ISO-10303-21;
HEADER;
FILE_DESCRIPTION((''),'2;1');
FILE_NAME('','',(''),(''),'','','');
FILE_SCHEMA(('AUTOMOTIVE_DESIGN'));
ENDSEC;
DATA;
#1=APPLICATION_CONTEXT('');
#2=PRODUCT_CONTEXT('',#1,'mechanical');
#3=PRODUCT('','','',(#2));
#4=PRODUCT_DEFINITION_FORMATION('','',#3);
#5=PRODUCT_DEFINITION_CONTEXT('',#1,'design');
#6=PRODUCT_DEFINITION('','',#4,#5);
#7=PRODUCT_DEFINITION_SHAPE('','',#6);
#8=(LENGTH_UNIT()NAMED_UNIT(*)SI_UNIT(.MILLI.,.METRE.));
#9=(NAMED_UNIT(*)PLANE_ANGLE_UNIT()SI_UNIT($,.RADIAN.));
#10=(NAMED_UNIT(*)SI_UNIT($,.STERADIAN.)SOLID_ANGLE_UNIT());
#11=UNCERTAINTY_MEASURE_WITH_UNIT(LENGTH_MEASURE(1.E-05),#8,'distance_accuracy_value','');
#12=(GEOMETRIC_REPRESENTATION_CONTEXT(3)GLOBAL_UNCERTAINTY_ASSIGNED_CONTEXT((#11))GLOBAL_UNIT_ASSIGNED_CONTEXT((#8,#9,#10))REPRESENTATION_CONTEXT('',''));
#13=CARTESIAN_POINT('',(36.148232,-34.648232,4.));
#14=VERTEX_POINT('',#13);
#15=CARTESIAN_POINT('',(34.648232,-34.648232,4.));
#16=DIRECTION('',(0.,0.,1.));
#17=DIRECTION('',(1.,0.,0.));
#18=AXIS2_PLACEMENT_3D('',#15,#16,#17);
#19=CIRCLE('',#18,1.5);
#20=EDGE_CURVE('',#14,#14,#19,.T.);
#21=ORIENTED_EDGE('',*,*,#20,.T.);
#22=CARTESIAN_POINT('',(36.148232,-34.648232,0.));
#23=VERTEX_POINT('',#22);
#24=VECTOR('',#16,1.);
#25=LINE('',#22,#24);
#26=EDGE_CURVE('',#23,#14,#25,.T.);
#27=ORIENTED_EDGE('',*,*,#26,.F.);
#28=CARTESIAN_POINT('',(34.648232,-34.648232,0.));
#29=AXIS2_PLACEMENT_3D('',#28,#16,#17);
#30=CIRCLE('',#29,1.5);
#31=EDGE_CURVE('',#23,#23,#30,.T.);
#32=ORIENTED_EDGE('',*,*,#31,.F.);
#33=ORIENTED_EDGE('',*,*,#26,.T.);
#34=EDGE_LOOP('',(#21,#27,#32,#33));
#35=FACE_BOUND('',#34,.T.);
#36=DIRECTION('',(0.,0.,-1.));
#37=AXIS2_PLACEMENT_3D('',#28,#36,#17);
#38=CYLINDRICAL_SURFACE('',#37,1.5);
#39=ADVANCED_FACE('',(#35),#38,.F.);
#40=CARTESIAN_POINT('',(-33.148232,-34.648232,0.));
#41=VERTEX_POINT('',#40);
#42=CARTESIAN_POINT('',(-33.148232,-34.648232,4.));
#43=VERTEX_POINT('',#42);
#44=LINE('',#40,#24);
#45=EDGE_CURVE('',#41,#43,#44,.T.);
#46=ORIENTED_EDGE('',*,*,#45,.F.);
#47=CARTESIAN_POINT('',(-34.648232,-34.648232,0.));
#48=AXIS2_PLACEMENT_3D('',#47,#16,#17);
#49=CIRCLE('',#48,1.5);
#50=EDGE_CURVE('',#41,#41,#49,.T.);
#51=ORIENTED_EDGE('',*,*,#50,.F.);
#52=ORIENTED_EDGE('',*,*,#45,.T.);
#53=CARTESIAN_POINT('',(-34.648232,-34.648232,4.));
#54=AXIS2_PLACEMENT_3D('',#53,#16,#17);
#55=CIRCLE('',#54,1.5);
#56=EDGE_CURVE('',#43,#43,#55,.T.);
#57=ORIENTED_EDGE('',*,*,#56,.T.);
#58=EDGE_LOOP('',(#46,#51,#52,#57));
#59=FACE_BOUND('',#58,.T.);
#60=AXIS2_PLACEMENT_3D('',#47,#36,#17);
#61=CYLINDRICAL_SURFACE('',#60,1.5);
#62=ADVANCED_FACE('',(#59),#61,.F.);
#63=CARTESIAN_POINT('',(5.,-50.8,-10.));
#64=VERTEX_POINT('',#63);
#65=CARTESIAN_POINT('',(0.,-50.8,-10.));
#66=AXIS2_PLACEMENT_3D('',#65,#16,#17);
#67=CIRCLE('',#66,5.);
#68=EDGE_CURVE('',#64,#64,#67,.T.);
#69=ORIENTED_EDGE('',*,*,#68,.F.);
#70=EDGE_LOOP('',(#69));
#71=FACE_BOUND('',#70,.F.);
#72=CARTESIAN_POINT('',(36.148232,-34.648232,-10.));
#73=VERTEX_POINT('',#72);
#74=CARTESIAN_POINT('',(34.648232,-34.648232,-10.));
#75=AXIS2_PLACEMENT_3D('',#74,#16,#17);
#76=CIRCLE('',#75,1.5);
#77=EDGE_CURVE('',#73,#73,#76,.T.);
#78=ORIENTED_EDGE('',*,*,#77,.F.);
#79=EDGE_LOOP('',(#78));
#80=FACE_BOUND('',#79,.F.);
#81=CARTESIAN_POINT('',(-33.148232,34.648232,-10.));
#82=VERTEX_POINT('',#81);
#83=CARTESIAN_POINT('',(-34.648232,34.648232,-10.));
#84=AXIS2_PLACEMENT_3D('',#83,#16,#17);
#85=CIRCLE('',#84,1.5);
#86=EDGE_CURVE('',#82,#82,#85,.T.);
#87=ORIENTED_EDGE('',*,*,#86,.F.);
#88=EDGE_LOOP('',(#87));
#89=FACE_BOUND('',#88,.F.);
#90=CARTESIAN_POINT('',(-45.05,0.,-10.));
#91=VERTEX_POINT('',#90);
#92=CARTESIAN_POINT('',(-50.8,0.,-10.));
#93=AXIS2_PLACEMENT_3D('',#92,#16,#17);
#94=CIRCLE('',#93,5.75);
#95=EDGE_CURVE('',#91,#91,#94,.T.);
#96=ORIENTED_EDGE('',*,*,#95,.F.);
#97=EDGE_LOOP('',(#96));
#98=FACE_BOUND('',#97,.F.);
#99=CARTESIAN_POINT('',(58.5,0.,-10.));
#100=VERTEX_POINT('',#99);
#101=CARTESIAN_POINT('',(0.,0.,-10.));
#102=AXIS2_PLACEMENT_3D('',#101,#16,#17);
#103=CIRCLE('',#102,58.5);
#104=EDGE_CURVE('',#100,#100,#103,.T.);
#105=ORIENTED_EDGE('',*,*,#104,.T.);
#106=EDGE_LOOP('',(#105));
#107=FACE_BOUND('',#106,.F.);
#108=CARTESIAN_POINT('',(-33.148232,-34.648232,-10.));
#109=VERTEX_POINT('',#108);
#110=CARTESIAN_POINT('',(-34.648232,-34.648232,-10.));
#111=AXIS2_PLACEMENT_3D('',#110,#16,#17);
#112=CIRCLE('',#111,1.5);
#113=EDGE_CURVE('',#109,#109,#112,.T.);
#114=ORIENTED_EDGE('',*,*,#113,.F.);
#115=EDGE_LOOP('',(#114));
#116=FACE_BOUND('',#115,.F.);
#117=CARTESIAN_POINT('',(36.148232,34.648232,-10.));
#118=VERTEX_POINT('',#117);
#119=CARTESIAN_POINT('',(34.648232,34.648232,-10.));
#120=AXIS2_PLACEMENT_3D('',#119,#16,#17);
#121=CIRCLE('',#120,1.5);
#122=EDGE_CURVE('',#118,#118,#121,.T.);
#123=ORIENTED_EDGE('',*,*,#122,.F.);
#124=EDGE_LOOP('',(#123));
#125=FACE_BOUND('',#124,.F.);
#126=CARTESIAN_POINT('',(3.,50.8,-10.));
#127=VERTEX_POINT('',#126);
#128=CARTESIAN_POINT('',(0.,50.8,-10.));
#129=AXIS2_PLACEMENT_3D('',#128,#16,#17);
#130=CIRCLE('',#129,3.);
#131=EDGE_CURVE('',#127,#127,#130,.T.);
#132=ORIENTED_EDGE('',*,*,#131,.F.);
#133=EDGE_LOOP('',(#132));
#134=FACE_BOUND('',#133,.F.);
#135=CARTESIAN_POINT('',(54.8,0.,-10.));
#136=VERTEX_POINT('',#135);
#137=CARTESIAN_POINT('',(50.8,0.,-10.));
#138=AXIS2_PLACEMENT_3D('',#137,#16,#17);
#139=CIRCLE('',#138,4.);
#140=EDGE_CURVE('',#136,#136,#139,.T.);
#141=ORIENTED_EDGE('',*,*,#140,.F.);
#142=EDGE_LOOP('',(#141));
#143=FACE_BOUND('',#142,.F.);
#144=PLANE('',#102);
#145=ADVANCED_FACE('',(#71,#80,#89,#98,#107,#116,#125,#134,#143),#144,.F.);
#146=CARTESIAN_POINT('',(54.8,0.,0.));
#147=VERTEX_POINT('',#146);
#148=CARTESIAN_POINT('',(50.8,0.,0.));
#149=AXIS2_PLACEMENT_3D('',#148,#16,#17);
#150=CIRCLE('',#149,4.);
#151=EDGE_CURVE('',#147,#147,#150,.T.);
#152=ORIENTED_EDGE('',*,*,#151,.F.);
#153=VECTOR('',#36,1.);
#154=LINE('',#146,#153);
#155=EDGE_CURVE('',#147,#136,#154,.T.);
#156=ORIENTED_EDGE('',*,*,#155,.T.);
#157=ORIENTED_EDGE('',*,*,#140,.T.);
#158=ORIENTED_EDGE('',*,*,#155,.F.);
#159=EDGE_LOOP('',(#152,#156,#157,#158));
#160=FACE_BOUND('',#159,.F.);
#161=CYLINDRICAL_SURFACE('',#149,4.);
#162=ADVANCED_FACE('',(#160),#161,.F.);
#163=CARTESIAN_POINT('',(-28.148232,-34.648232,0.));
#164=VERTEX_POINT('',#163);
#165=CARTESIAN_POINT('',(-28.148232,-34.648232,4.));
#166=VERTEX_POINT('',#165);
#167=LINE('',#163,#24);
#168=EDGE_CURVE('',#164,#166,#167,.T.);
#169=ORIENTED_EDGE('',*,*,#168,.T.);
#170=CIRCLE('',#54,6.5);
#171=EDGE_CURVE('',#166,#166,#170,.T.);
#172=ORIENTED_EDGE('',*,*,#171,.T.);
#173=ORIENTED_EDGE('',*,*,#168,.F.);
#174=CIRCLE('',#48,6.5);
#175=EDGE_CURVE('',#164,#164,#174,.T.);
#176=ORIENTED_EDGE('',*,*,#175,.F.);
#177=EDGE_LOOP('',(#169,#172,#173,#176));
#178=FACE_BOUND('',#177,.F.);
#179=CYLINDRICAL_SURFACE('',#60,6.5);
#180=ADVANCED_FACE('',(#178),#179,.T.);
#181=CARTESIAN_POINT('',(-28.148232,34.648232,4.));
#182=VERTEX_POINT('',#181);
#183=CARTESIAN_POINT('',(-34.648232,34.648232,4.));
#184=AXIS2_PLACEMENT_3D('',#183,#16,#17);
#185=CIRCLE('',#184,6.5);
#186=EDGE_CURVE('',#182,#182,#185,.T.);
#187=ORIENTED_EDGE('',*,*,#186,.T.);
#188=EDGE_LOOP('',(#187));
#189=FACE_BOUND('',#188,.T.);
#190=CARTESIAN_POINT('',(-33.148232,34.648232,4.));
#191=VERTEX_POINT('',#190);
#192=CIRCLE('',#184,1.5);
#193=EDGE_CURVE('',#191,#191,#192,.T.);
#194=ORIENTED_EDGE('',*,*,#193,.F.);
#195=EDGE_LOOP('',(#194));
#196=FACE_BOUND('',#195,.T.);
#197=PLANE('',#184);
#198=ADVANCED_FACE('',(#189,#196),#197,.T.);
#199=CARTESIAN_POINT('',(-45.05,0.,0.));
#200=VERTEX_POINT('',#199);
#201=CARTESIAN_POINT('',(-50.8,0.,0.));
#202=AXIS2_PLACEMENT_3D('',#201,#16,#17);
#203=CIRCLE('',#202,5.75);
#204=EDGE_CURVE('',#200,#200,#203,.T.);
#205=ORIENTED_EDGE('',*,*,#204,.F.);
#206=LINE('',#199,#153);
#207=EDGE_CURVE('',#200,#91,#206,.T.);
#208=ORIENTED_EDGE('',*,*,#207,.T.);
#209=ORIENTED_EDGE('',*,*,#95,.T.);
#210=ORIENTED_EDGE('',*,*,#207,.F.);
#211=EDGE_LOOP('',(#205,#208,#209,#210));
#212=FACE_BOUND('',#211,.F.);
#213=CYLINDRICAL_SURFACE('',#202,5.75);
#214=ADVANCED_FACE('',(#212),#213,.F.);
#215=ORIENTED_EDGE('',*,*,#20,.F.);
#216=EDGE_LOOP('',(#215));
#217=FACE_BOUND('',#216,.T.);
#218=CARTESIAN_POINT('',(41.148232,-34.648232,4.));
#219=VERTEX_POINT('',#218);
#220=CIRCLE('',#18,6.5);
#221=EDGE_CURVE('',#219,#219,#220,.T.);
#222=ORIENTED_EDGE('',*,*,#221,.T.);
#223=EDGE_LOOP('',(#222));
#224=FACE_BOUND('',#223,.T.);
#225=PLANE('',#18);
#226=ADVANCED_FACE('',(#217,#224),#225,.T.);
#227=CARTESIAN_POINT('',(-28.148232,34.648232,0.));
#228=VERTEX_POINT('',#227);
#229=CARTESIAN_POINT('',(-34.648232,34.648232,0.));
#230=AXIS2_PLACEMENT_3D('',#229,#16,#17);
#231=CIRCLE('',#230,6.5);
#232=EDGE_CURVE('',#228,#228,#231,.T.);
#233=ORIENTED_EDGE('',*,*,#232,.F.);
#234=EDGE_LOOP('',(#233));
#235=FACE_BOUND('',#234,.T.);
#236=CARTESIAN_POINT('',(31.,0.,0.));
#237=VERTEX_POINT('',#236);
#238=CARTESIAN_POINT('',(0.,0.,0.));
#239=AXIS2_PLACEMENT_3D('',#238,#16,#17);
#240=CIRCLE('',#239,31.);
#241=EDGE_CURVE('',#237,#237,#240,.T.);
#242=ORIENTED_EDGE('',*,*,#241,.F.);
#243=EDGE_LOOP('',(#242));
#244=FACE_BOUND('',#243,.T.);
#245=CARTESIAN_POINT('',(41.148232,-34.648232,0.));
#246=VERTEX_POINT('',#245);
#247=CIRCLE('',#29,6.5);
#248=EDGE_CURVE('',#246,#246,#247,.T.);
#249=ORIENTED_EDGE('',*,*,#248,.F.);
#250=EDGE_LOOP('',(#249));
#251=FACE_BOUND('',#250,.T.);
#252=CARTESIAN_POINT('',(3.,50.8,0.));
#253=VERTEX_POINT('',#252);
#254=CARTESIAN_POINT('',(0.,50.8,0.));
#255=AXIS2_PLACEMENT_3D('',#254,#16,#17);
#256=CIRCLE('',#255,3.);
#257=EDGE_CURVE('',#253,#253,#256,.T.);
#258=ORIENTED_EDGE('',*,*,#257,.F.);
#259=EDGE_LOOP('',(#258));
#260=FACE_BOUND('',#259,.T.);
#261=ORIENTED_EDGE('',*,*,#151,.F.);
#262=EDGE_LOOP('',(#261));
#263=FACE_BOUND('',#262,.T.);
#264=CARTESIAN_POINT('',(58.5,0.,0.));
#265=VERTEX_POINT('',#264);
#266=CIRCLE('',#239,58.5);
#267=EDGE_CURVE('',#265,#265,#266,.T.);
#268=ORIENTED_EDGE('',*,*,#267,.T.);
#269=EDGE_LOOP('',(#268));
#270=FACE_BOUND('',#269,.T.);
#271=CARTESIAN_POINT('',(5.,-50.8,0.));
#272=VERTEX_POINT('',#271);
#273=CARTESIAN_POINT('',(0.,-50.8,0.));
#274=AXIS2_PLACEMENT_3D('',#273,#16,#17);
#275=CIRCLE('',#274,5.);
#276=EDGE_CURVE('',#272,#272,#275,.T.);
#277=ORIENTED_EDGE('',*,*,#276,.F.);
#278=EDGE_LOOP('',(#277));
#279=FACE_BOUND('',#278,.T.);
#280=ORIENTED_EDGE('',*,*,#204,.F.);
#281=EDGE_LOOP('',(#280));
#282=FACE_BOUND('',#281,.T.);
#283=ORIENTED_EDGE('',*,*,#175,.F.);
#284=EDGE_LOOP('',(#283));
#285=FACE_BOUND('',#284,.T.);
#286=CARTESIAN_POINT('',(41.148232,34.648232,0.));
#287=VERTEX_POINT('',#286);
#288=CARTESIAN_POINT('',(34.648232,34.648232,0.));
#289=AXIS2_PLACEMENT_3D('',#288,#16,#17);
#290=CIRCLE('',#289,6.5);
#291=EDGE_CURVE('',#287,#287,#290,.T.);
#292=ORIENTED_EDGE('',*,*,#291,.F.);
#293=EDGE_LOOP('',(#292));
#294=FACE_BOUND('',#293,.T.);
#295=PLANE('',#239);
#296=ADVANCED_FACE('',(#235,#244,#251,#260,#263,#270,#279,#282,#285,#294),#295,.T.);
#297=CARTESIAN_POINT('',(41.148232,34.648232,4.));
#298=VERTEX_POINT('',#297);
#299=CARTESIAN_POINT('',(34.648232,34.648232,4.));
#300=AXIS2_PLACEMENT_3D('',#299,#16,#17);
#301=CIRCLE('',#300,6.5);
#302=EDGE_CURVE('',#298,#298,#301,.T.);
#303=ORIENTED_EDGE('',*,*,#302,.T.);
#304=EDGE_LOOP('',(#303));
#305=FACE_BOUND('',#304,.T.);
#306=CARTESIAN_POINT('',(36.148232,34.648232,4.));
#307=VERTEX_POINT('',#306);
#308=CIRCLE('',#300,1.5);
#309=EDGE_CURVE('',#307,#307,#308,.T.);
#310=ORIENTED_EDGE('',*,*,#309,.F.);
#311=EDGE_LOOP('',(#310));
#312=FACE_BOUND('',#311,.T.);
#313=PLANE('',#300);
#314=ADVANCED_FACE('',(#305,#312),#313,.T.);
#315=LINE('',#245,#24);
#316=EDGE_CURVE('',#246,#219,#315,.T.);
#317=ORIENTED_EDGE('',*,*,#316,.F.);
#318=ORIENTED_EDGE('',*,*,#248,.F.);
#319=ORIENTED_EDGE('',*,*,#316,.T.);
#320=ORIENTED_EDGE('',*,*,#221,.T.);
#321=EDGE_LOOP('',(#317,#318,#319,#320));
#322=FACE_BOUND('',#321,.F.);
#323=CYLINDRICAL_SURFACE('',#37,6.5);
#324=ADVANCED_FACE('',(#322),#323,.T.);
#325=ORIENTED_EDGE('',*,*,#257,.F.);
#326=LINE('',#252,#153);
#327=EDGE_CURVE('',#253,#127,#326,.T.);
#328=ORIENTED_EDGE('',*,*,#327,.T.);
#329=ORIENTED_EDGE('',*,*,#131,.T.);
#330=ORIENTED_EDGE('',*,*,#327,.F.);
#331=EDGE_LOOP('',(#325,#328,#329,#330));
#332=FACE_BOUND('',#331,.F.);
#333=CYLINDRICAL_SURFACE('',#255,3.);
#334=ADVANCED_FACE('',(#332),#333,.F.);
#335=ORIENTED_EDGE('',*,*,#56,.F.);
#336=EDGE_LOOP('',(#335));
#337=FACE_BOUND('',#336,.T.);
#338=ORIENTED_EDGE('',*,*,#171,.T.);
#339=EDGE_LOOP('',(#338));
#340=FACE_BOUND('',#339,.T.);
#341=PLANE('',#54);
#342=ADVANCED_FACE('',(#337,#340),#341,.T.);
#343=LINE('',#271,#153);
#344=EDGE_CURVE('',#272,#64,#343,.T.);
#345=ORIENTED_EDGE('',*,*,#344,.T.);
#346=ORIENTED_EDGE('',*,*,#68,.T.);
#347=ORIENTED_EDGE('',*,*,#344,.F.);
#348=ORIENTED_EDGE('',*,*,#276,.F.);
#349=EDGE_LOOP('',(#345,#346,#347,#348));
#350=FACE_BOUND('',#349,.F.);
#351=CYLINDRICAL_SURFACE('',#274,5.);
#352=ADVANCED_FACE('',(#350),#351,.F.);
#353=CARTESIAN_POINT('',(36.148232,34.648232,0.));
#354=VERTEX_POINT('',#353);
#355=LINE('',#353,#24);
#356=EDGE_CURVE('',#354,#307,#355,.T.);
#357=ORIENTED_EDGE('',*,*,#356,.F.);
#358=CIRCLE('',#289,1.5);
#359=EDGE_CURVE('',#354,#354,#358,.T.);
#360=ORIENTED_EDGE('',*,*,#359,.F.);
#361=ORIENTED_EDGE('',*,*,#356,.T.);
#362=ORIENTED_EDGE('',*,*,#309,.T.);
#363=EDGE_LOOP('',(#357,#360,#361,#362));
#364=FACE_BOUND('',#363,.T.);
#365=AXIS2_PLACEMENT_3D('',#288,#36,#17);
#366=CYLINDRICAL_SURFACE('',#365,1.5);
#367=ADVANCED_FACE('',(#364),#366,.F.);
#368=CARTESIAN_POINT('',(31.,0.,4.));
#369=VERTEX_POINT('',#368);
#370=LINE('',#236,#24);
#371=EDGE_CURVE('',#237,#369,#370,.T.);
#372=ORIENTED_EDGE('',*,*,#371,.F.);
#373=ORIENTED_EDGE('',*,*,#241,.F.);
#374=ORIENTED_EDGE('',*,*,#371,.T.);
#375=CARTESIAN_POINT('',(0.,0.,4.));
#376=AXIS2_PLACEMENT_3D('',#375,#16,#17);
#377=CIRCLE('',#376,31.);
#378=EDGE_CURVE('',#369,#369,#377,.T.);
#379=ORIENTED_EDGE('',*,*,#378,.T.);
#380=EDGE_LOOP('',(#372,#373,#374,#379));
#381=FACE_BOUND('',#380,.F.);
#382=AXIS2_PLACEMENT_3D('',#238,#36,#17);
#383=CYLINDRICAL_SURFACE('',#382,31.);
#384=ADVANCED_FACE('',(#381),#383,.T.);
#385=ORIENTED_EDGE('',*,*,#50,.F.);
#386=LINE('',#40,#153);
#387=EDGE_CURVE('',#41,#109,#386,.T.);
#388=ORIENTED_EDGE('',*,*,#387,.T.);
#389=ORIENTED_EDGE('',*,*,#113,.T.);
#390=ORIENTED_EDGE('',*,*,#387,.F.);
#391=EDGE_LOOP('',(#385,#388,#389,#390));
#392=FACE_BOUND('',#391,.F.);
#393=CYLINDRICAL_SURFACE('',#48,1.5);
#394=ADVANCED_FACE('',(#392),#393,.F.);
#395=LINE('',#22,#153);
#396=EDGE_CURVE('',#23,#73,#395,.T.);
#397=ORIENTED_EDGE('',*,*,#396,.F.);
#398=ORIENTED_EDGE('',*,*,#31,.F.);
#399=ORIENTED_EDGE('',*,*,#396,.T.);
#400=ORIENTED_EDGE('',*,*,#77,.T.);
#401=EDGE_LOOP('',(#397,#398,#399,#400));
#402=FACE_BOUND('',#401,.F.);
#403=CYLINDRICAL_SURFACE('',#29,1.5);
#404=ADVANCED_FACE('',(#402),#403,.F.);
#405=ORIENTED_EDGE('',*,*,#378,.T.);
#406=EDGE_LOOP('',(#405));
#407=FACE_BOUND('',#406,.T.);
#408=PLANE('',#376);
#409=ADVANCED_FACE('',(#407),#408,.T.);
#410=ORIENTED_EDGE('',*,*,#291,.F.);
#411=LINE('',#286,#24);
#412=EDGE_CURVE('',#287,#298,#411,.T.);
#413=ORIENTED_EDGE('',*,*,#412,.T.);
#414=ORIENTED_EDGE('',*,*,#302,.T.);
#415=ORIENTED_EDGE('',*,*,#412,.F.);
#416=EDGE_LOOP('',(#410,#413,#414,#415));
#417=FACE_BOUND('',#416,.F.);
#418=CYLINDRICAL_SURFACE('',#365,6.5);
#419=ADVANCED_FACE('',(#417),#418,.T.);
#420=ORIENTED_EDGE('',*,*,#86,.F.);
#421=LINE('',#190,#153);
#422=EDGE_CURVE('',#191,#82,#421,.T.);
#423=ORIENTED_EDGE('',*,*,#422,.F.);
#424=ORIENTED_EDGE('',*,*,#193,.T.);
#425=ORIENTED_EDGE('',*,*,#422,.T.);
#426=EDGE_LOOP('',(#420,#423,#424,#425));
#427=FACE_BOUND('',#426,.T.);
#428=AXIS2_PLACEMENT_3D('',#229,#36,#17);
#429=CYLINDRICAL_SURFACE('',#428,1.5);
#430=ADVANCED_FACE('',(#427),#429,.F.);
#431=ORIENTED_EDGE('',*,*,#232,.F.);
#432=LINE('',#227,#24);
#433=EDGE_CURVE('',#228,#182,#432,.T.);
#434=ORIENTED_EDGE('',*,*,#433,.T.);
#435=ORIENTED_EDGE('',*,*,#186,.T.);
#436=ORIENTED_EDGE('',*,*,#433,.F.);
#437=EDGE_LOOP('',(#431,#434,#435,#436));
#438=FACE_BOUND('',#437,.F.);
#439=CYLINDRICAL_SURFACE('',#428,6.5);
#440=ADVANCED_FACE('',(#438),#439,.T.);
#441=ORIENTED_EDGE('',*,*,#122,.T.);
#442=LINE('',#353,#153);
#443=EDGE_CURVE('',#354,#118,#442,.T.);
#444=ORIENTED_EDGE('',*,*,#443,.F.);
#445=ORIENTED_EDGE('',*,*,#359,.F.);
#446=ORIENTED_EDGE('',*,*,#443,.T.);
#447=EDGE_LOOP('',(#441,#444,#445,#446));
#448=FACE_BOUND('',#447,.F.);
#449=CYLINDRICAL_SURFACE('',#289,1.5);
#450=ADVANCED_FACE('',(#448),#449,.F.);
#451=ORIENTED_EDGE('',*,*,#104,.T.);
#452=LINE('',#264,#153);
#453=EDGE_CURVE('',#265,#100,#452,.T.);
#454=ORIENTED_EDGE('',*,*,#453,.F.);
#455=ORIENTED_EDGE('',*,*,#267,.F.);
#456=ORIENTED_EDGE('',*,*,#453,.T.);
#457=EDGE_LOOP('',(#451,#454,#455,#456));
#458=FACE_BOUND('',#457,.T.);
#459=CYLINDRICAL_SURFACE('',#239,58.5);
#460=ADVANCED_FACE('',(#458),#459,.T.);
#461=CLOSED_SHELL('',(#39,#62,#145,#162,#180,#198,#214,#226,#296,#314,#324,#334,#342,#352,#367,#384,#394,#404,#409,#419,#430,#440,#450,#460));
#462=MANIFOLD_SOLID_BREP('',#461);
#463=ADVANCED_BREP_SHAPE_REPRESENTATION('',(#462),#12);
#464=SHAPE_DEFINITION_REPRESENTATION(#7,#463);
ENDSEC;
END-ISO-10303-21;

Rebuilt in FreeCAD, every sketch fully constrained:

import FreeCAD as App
import Part
import Sketcher

doc = App.newDocument("Part")
body = doc.addObject("PartDesign::Body", "Body")

# Sketch on XY plane
sketch1 = doc.addObject("Sketcher::SketchObject", "Sketch")
body.addObject(sketch1)
sketch1.AttachmentSupport = (doc.XY_Plane, [""])
sketch1.MapMode = "FlatFace"
sketch1.addGeometry([
    Part.Circle(App.Vector(0, 0, 0), App.Vector(0, 0, 1), 58.5),  # 0
    Part.Circle(App.Vector(-34.6, -34.6, 0), App.Vector(0, 0, 1), 1.5),  # 1
    Part.Circle(App.Vector(0, -50.8, 0), App.Vector(0, 0, 1), 5),  # 2
    Part.Circle(App.Vector(34.6, -34.6, 0), App.Vector(0, 0, 1), 1.5),  # 3
    Part.Circle(App.Vector(-50.8, 0, 0), App.Vector(0, 0, 1), 5.8),  # 4
    Part.Circle(App.Vector(-34.6, 34.6, 0), App.Vector(0, 0, 1), 1.5),  # 5
    Part.Circle(App.Vector(50.8, 0, 0), App.Vector(0, 0, 1), 4),  # 6
    Part.Circle(App.Vector(0, 50.8, 0), App.Vector(0, 0, 1), 3),  # 7
    Part.Circle(App.Vector(34.6, 34.6, 0), App.Vector(0, 0, 1), 1.5),  # 8
], False)
sketch1.addConstraint([
    Sketcher.Constraint("Coincident", 0, 3, -1, 1),
    Sketcher.Constraint("Equal", 1, 3),
    Sketcher.Constraint("Equal", 3, 5),
    Sketcher.Constraint("Equal", 5, 8),
    Sketcher.Constraint("Symmetric", 3, 3, 5, 3, -1, 1),
    Sketcher.Constraint("Symmetric", 4, 3, 6, 3, -1, 1),
    Sketcher.Constraint("Symmetric", 2, 3, 7, 3, -1, 1),
    Sketcher.Constraint("Symmetric", 1, 3, 8, 3, -1, 1),
    Sketcher.Constraint("Symmetric", 1, 3, 3, 3, -2),
    Sketcher.Constraint("PointOnObject", 2, 3, -2),
    Sketcher.Constraint("PointOnObject", 4, 3, -1),
    Sketcher.Constraint("Diameter", 0, 117.0),
    Sketcher.Constraint("Diameter", 1, 3.0),
    Sketcher.Constraint("Diameter", 2, 10.0),
    Sketcher.Constraint("Diameter", 6, 8.0),
    Sketcher.Constraint("Diameter", 7, 6.0),
    Sketcher.Constraint("Diameter", 4, 11.5),
    Sketcher.Constraint("DistanceY", 2, 3, -1, 1, 50.8),
    Sketcher.Constraint("DistanceX", 4, 3, -1, 1, 50.8),
    Sketcher.Constraint("DistanceX", 4, 3, 3, 3, 85.448232),
    Sketcher.Constraint("DistanceY", 2, 3, 5, 3, 85.448232),
])
pad1 = doc.addObject("PartDesign::Pad", "Pad")
body.addObject(pad1)
pad1.Profile = sketch1
pad1.Length = 10
pad1.Reversed = True

# Sketch on XY plane
sketch2 = doc.addObject("Sketcher::SketchObject", "Sketch001")
body.addObject(sketch2)
sketch2.AttachmentSupport = (doc.XY_Plane, [""])
sketch2.MapMode = "FlatFace"
sketch2.addGeometry([
    Part.Circle(App.Vector(-34.6, 34.6, 0), App.Vector(0, 0, 1), 6.5),  # 0
    Part.Circle(App.Vector(-34.6, 34.6, 0), App.Vector(0, 0, 1), 1.5),  # 1
    Part.Circle(App.Vector(34.6, 34.6, 0), App.Vector(0, 0, 1), 6.5),  # 2
    Part.Circle(App.Vector(34.6, 34.6, 0), App.Vector(0, 0, 1), 1.5),  # 3
    Part.Circle(App.Vector(34.6, -34.6, 0), App.Vector(0, 0, 1), 6.5),  # 4
    Part.Circle(App.Vector(34.6, -34.6, 0), App.Vector(0, 0, 1), 1.5),  # 5
    Part.Circle(App.Vector(-34.6, -34.6, 0), App.Vector(0, 0, 1), 6.5),  # 6
    Part.Circle(App.Vector(-34.6, -34.6, 0), App.Vector(0, 0, 1), 1.5),  # 7
    Part.Circle(App.Vector(0, 0, 0), App.Vector(0, 0, 1), 31),  # 8
], False)
sketch2.addConstraint([
    Sketcher.Constraint("Coincident", 8, 3, -1, 1),
    Sketcher.Constraint("Coincident", 1, 3, 0, 3),
    Sketcher.Constraint("Coincident", 3, 3, 2, 3),
    Sketcher.Constraint("Coincident", 5, 3, 4, 3),
    Sketcher.Constraint("Coincident", 7, 3, 6, 3),
    Sketcher.Constraint("Equal", 0, 2),
    Sketcher.Constraint("Equal", 1, 3),
    Sketcher.Constraint("Equal", 2, 4),
    Sketcher.Constraint("Equal", 3, 5),
    Sketcher.Constraint("Equal", 4, 6),
    Sketcher.Constraint("Equal", 5, 7),
    Sketcher.Constraint("Symmetric", 0, 3, 4, 3, -1, 1),
    Sketcher.Constraint("Symmetric", 2, 3, 6, 3, -1, 1),
    Sketcher.Constraint("Symmetric", 0, 3, 2, 3, -2),
    Sketcher.Constraint("Diameter", 0, 13.0),
    Sketcher.Constraint("Diameter", 1, 3.0),
    Sketcher.Constraint("Diameter", 8, 62.0),
    Sketcher.Constraint("DistanceX", 0, 3, -1, 1, 34.648232),
    Sketcher.Constraint("DistanceY", -1, 1, 0, 3, 34.648232),
])
pad2 = doc.addObject("PartDesign::Pad", "Pad001")
body.addObject(pad2)
pad2.Profile = sketch2
pad2.Length = 4

doc.recompute()
